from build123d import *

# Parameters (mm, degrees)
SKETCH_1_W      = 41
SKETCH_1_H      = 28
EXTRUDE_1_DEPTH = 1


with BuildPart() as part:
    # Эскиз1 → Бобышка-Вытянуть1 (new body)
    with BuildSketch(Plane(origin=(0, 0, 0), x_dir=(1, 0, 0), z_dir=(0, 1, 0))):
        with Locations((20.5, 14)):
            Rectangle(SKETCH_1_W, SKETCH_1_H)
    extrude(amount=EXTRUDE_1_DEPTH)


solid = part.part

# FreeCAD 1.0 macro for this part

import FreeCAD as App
import Part
import Sketcher

V = App.Vector

doc = App.newDocument("Part")
body = doc.addObject("PartDesign::Body", "Body")

# Sketch on XZ plane
sketch1 = body.newObject("Sketcher::SketchObject", "Sketch")
sketch1.AttachmentSupport = (doc.getObject("XZ_Plane"), [""])
sketch1.MapMode = "FlatFace"
sketch1.addGeometry([
    Part.LineSegment(V(0, -28, 0), V(0, 0, 0)),
    Part.LineSegment(V(0, 0, 0), V(41, 0, 0)),
    Part.LineSegment(V(41, 0, 0), V(41, -28, 0)),
    Part.LineSegment(V(41, -28, 0), V(0, -28, 0)),
], False)
sketch1.addConstraint([
    Sketcher.Constraint("Coincident", 0, 2, 1, 1),
    Sketcher.Constraint("Coincident", 1, 2, 2, 1),
    Sketcher.Constraint("Coincident", 2, 2, 3, 1),
    Sketcher.Constraint("Coincident", 3, 2, 0, 1),
    Sketcher.Constraint("Vertical", 0),
    Sketcher.Constraint("Horizontal", 1),
    Sketcher.Constraint("Vertical", 2),
    Sketcher.Constraint("Horizontal", 3),
    Sketcher.Constraint("Coincident", 0, 2, -1, 1),
    Sketcher.Constraint("DistanceX", 1, 1, 1, 2, 41.0),
    Sketcher.Constraint("DistanceY", 0, 1, 0, 2, 28.0),
])
pad1 = body.newObject("PartDesign::Pad", "Pad")
pad1.Profile = sketch1
pad1.Length = 1
pad1.Reversed = True

doc.recompute()
